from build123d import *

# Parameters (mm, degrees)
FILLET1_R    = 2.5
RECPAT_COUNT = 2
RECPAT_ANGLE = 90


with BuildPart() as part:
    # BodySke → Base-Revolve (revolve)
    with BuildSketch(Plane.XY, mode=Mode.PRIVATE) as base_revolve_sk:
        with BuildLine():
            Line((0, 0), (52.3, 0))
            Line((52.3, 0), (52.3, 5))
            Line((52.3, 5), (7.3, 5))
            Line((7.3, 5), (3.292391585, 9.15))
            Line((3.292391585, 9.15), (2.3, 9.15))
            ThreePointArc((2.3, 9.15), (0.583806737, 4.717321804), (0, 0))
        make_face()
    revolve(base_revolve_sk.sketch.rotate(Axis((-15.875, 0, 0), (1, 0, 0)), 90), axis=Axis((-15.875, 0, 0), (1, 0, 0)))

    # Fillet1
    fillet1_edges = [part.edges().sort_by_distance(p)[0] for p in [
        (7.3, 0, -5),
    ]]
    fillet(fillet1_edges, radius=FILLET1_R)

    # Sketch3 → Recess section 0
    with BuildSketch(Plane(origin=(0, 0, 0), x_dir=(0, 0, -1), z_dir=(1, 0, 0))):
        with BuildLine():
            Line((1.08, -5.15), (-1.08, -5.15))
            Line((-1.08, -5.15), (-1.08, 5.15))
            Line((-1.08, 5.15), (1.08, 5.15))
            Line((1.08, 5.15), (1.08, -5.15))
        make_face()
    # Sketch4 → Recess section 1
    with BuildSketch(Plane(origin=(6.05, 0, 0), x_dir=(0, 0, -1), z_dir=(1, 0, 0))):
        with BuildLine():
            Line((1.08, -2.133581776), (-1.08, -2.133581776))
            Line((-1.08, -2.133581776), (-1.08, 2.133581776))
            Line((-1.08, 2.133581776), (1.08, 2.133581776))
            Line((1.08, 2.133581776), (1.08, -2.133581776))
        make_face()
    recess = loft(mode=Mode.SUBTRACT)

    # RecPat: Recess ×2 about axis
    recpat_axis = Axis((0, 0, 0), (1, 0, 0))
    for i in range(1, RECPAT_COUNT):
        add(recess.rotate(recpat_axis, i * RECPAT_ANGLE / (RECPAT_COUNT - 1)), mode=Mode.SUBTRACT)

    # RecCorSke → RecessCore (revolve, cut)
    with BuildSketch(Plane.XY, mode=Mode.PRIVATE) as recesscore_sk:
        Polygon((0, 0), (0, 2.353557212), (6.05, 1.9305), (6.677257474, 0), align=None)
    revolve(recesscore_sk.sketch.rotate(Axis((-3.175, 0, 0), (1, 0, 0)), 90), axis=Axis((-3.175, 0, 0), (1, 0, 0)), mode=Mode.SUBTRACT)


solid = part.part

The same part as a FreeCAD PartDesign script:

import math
import FreeCAD as App
import Part
import Sketcher
from FreeCAD import Vector
Q = App.Units.Quantity


def edges_at(feature, points):
    """Names of the edges that pass closest to the given points."""
    edges = feature.Shape.Edges
    near = lambda p: min(range(len(edges)), key=lambda i: edges[i].distToShape(Part.Vertex(*p))[0])
    return sorted({f"Edge{near(p) + 1}" for p in points})

doc = App.newDocument("Part")
params = doc.addObject("Spreadsheet::Sheet", "Params")
for row, (alias, value) in enumerate([
    ("sketch1_width", "45 mm"),
    ("sketch1_height", "5 mm"),
    ("sketch1_width2", "52.3 mm"),
    ("revolution_angle", "360 deg"),
    ("fillet_radius", "2.5 mm"),
    ("sketch2_width", "10.3 mm"),
    ("sketch2_height", "2.16 mm"),
    ("sketch3_height", "2.16 mm"),
    ("groove_angle", "360 deg"),
], start=1):
    params.set(f"A{row}", alias)
    params.set(f"B{row}", "=" + value)
    params.setAlias(f"B{row}", alias)

body = doc.addObject("PartDesign::Body", "Body")

sketch1 = doc.addObject("Sketcher::SketchObject", "Sketch")
body.addObject(sketch1)
sketch1.AttachmentSupport = (doc.XY_Plane, [""])
sketch1.MapMode = "FlatFace"
sketch1.addGeometry(Part.LineSegment(Vector(0, 0, 0), Vector(52.3, 0, 0)), False)
sketch1.addGeometry(Part.LineSegment(Vector(52.3, 0, 0), Vector(52.3, 5, 0)), False)
sketch1.addGeometry(Part.LineSegment(Vector(52.3, 5, 0), Vector(7.3, 5, 0)), False)
sketch1.addGeometry(Part.LineSegment(Vector(7.3, 5, 0), Vector(3.292392, 9.15, 0)), False)
sketch1.addGeometry(Part.LineSegment(Vector(3.292392, 9.15, 0), Vector(2.3, 9.15, 0)), False)
sketch1.addGeometry(Part.ArcOfCircle(Part.Circle(Vector(19.350543, 0, 0), Vector(0, 0, 1), 19.350543), math.radians(151.780223), math.radians(180)), False)
sketch1.addConstraint(Sketcher.Constraint("Coincident", 0, 2, 1, 1))
sketch1.addConstraint(Sketcher.Constraint("Coincident", 1, 2, 2, 1))
sketch1.addConstraint(Sketcher.Constraint("Coincident", 2, 2, 3, 1))
sketch1.addConstraint(Sketcher.Constraint("Coincident", 3, 2, 4, 1))
sketch1.addConstraint(Sketcher.Constraint("Coincident", 4, 2, 5, 1))
sketch1.addConstraint(Sketcher.Constraint("Coincident", 5, 2, 0, 1))
sketch1.addConstraint(Sketcher.Constraint("Horizontal", 0))
sketch1.addConstraint(Sketcher.Constraint("Vertical", 1))
sketch1.addConstraint(Sketcher.Constraint("Horizontal", 2))
sketch1.addConstraint(Sketcher.Constraint("Horizontal", 4))
sketch1.addConstraint(Sketcher.Constraint("Coincident", 5, 2, -1, 1))
sketch1.addConstraint(Sketcher.Constraint("PointOnObject", 5, 3, -1))
sketch1.addConstraint(Sketcher.Constraint("DistanceX", 2, 2, 2, 1, Q("45 mm")))
sketch1.addConstraint(Sketcher.Constraint("DistanceY", 1, 1, 1, 2, Q("5 mm")))
sketch1.addConstraint(Sketcher.Constraint("Angle", 3, Q("134 deg")))
sketch1.addConstraint(Sketcher.Constraint("DistanceX", 0, 1, 0, 2, Q("52.3 mm")))
sketch1.addConstraint(Sketcher.Constraint("DistanceX", 4, 2, 2, 2, Q("5 mm")))
sketch1.addConstraint(Sketcher.Constraint("DistanceY", -1, 1, 3, 2, Q("9.15 mm")))
sketch1.setExpression("Constraints[12]", "Params.sketch1_width")
sketch1.setExpression("Constraints[13]", "Params.sketch1_height")
sketch1.setExpression("Constraints[15]", "Params.sketch1_width2")
revolution = doc.addObject("PartDesign::Revolution", "Revolution")
body.addObject(revolution)
revolution.Profile = sketch1
revolution.ReferenceAxis = (sketch1, ["H_Axis"])
revolution.setExpression("Angle", "Params.revolution_angle")
doc.recompute()

fillet = doc.addObject("PartDesign::Fillet", "Fillet")
body.addObject(fillet)
fillet.Base = (revolution, edges_at(revolution, [(7.3, 0, -5)]))
fillet.setExpression("Radius", "Params.fillet_radius")

sketch2 = doc.addObject("Sketcher::SketchObject", "Sketch001")
body.addObject(sketch2)
sketch2.AttachmentSupport = (doc.YZ_Plane, [""])
sketch2.MapMode = "FlatFace"
sketch2.addGeometry(Part.LineSegment(Vector(-5.15, 1.08, 0), Vector(-5.15, -1.08, 0)), False)
sketch2.addGeometry(Part.LineSegment(Vector(-5.15, -1.08, 0), Vector(5.15, -1.08, 0)), False)
sketch2.addGeometry(Part.LineSegment(Vector(5.15, -1.08, 0), Vector(5.15, 1.08, 0)), False)
sketch2.addGeometry(Part.LineSegment(Vector(5.15, 1.08, 0), Vector(-5.15, 1.08, 0)), False)
sketch2.addConstraint(Sketcher.Constraint("Coincident", 0, 2, 1, 1))
sketch2.addConstraint(Sketcher.Constraint("Coincident", 1, 2, 2, 1))
sketch2.addConstraint(Sketcher.Constraint("Coincident", 2, 2, 3, 1))
sketch2.addConstraint(Sketcher.Constraint("Coincident", 3, 2, 0, 1))
sketch2.addConstraint(Sketcher.Constraint("Vertical", 0))
sketch2.addConstraint(Sketcher.Constraint("Horizontal", 1))
sketch2.addConstraint(Sketcher.Constraint("Vertical", 2))
sketch2.addConstraint(Sketcher.Constraint("Horizontal", 3))
sketch2.addConstraint(Sketcher.Constraint("Symmetric", 0, 2, 2, 2, -1, 1))
sketch2.addConstraint(Sketcher.Constraint("DistanceX", 1, 1, 1, 2, Q("10.3 mm")))
sketch2.addConstraint(Sketcher.Constraint("DistanceY", 0, 2, 0, 1, Q("2.16 mm")))
sketch2.setExpression("Constraints[9]", "Params.sketch2_width")
sketch2.setExpression("Constraints[10]", "Params.sketch2_height")

sketch3 = doc.addObject("Sketcher::SketchObject", "Sketch002")
body.addObject(sketch3)
sketch3.AttachmentSupport = (doc.YZ_Plane, [""])
sketch3.MapMode = "FlatFace"
sketch3.AttachmentOffset = App.Placement(Vector(0, 0, 6.05), App.Rotation())
sketch3.addGeometry(Part.LineSegment(Vector(-2.133582, 1.08, 0), Vector(-2.133582, -1.08, 0)), False)
sketch3.addGeometry(Part.LineSegment(Vector(-2.133582, -1.08, 0), Vector(2.133582, -1.08, 0)), False)
sketch3.addGeometry(Part.LineSegment(Vector(2.133582, -1.08, 0), Vector(2.133582, 1.08, 0)), False)
sketch3.addGeometry(Part.LineSegment(Vector(2.133582, 1.08, 0), Vector(-2.133582, 1.08, 0)), False)
sketch3.addConstraint(Sketcher.Constraint("Coincident", 0, 2, 1, 1))
sketch3.addConstraint(Sketcher.Constraint("Coincident", 1, 2, 2, 1))
sketch3.addConstraint(Sketcher.Constraint("Coincident", 2, 2, 3, 1))
sketch3.addConstraint(Sketcher.Constraint("Coincident", 3, 2, 0, 1))
sketch3.addConstraint(Sketcher.Constraint("Vertical", 0))
sketch3.addConstraint(Sketcher.Constraint("Horizontal", 1))
sketch3.addConstraint(Sketcher.Constraint("Vertical", 2))
sketch3.addConstraint(Sketcher.Constraint("Horizontal", 3))
sketch3.addConstraint(Sketcher.Constraint("Symmetric", 0, 2, 2, 2, -1, 1))
sketch3.addConstraint(Sketcher.Constraint("DistanceY", 0, 2, 0, 1, Q("2.16 mm")))
sketch3.addConstraint(Sketcher.Constraint("DistanceX", 1, 1, 1, 2, Q("4.267164 mm")))
sketch3.setExpression("Constraints[9]", "Params.sketch3_height")

subtractiveloft = doc.addObject("PartDesign::SubtractiveLoft", "SubtractiveLoft")
body.addObject(subtractiveloft)
subtractiveloft.Profile = sketch2
subtractiveloft.Sections = [sketch3]
doc.recompute()

polarpattern = doc.addObject("PartDesign::PolarPattern", "PolarPattern")
body.addObject(polarpattern)
polarpattern.Originals = [subtractiveloft]
polarpattern.Axis = (doc.X_Axis, [""])
polarpattern.Angle = 90
polarpattern.Occurrences = 2
body.Tip = polarpattern

sketch4 = doc.addObject("Sketcher::SketchObject", "Sketch003")
body.addObject(sketch4)
sketch4.AttachmentSupport = (doc.XY_Plane, [""])
sketch4.MapMode = "FlatFace"
sketch4.addGeometry(Part.LineSegment(Vector(0, 2.353557, 0), Vector(0, 0, 0)), False)
sketch4.addGeometry(Part.LineSegment(Vector(0, 0, 0), Vector(6.677257, 0, 0)), False)
sketch4.addGeometry(Part.LineSegment(Vector(6.677257, 0, 0), Vector(6.05, 1.9305, 0)), False)
sketch4.addGeometry(Part.LineSegment(Vector(6.05, 1.9305, 0), Vector(0, 2.353557, 0)), False)
sketch4.addConstraint(Sketcher.Constraint("Coincident", 0, 2, 1, 1))
sketch4.addConstraint(Sketcher.Constraint("Coincident", 1, 2, 2, 1))
sketch4.addConstraint(Sketcher.Constraint("Coincident", 2, 2, 3, 1))
sketch4.addConstraint(Sketcher.Constraint("Coincident", 3, 2, 0, 1))
sketch4.addConstraint(Sketcher.Constraint("Vertical", 0))
sketch4.addConstraint(Sketcher.Constraint("Horizontal", 1))
sketch4.addConstraint(Sketcher.Constraint("Coincident", 0, 2, -1, 1))
sketch4.addConstraint(Sketcher.Constraint("Angle", 2, Q("108 deg")))
sketch4.addConstraint(Sketcher.Constraint("Angle", 3, Q("176 deg")))
sketch4.addConstraint(Sketcher.Constraint("DistanceX", -1, 1, 2, 2, Q("6.05 mm")))
sketch4.addConstraint(Sketcher.Constraint("DistanceY", -1, 1, 2, 2, Q("1.9305 mm")))
groove = doc.addObject("PartDesign::Groove", "Groove")
body.addObject(groove)
groove.Profile = sketch4
groove.ReferenceAxis = (sketch4, ["H_Axis"])
groove.setExpression("Angle", "Params.groove_angle")

doc.recompute()
